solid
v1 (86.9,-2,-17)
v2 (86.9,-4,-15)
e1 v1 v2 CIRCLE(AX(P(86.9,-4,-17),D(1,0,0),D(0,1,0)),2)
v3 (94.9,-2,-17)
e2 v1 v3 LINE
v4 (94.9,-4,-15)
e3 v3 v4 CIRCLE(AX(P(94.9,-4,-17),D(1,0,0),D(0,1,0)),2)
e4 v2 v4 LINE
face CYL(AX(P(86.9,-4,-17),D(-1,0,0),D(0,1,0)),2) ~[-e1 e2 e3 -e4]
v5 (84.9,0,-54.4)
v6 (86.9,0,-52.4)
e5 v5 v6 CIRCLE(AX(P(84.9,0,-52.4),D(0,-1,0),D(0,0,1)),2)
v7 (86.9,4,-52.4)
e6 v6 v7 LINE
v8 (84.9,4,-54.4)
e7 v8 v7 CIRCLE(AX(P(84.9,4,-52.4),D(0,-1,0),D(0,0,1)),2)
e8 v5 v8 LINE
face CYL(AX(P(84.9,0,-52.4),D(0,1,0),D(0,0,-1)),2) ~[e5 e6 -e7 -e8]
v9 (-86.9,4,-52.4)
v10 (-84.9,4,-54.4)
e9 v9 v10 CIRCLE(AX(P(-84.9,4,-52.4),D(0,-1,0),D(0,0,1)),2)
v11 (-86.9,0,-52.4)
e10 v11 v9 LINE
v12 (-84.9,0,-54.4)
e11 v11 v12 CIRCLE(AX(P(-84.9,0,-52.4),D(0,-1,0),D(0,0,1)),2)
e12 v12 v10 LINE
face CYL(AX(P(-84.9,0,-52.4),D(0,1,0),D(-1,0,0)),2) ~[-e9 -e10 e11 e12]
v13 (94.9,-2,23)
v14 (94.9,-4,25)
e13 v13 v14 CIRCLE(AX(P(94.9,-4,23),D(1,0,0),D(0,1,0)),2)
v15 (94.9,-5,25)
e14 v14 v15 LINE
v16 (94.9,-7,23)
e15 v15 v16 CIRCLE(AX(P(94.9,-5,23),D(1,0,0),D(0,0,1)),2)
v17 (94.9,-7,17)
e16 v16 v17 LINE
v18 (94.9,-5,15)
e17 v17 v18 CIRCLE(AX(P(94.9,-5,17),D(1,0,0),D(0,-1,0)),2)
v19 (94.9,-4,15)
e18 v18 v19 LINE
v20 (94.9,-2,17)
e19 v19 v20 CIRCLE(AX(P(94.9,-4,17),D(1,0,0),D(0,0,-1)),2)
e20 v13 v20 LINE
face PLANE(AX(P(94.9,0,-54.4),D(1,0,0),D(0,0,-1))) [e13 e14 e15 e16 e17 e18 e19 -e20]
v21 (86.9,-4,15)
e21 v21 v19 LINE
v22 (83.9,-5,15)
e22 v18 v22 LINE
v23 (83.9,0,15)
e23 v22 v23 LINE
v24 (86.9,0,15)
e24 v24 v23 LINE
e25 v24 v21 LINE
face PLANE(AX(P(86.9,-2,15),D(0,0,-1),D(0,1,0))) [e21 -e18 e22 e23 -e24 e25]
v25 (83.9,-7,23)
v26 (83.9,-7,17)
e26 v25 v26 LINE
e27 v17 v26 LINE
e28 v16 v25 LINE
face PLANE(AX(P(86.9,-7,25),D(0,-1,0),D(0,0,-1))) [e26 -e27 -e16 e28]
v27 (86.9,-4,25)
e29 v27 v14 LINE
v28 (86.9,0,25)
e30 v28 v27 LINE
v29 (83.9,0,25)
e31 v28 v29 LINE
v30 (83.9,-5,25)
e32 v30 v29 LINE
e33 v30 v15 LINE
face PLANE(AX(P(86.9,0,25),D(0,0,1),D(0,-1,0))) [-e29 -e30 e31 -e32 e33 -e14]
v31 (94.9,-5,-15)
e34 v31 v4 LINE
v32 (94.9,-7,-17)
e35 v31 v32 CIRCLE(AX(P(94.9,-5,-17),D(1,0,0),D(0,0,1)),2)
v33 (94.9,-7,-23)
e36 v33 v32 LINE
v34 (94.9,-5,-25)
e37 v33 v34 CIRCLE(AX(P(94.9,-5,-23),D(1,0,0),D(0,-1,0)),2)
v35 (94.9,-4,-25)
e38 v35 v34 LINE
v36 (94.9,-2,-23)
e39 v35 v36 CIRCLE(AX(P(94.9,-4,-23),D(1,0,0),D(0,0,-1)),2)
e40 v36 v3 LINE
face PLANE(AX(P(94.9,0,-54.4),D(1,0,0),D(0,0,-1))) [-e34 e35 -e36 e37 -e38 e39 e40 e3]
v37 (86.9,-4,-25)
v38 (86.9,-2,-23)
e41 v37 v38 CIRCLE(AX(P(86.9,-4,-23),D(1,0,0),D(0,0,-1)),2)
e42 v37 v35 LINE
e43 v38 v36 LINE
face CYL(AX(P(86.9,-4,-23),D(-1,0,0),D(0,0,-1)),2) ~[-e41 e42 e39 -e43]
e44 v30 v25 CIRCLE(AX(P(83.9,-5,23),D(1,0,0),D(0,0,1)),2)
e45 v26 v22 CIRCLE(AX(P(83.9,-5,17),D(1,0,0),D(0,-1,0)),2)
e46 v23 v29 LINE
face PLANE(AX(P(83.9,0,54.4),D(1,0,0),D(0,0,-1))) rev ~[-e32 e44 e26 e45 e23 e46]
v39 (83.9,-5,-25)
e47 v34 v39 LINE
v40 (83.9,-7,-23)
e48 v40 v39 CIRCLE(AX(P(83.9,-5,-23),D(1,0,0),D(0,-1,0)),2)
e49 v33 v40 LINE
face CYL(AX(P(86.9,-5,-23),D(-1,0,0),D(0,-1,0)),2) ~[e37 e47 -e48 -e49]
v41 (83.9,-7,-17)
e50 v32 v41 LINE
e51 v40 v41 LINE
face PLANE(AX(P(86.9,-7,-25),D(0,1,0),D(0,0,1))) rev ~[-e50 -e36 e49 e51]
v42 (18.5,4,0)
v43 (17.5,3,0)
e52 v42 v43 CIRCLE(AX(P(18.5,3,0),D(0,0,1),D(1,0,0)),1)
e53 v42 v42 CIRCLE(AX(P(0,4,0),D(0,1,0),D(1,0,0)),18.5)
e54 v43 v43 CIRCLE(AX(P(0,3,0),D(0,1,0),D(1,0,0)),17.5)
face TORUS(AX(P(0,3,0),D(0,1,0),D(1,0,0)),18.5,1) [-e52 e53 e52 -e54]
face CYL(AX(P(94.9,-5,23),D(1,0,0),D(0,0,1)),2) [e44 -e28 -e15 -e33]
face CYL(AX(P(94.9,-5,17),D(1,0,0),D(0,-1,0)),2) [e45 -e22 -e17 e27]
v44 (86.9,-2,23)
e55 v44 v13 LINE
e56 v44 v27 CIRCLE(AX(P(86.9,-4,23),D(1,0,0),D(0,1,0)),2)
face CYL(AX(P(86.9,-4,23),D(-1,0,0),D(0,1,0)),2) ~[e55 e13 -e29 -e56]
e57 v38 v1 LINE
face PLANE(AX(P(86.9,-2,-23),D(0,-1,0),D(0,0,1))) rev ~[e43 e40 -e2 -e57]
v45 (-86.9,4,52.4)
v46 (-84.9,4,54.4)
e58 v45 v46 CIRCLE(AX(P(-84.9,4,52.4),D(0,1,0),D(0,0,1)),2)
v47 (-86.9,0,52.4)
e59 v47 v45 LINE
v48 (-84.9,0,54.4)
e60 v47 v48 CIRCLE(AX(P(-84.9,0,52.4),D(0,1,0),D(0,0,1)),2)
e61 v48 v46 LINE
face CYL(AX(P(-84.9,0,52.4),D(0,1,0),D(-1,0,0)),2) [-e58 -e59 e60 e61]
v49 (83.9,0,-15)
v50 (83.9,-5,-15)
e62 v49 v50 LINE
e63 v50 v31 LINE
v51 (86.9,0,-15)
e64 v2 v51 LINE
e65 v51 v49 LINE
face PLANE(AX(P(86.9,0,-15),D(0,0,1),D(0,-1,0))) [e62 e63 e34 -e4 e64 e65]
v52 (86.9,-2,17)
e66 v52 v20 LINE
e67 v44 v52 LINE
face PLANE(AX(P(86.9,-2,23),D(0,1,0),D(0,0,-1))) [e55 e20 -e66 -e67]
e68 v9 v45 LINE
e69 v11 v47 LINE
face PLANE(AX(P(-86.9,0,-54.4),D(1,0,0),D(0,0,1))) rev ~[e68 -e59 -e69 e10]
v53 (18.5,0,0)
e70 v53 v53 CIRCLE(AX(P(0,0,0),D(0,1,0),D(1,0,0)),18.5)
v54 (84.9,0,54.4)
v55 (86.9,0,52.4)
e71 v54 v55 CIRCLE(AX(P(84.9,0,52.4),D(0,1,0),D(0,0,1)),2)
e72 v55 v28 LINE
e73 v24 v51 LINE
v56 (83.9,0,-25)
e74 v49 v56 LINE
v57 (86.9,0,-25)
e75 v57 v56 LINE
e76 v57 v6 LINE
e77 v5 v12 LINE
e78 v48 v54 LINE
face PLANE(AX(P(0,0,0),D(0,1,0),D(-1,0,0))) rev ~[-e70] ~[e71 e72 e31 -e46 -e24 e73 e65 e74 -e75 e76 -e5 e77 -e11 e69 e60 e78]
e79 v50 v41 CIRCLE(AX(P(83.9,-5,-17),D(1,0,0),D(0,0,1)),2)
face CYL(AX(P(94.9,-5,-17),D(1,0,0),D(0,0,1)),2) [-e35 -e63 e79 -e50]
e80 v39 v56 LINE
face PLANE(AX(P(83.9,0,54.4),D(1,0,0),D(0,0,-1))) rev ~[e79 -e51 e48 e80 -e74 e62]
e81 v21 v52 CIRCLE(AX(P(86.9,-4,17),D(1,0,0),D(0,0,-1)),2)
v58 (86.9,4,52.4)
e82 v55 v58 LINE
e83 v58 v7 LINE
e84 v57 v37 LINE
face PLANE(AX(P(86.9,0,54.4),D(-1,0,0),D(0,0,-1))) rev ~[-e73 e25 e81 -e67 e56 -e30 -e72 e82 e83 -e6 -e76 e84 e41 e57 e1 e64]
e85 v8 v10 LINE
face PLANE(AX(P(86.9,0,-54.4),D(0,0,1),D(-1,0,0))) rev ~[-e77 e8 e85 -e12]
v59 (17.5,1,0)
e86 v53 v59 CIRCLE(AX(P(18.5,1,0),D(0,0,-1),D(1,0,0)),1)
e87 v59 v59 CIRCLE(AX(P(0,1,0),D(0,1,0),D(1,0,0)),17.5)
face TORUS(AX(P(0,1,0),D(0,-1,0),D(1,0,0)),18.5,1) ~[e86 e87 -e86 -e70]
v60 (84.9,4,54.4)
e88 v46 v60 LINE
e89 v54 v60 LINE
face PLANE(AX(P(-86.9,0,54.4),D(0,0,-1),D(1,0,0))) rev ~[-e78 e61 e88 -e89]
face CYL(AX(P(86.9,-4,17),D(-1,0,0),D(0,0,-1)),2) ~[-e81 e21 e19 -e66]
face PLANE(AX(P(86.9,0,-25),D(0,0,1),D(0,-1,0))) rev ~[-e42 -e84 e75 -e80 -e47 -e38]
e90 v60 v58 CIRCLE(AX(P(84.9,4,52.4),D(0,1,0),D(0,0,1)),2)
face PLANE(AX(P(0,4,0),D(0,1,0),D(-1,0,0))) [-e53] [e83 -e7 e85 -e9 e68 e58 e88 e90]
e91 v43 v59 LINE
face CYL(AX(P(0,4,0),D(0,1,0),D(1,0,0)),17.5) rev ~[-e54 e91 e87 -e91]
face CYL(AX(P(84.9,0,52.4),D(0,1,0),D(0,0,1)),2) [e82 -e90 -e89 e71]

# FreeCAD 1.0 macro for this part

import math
import FreeCAD as App
import Part
import Sketcher
from FreeCAD import Vector
Q = App.Units.Quantity


def edges_at(feature, points):
    """Names of the edges that pass closest to the given points."""
    edges = feature.Shape.Edges
    near = lambda p: min(range(len(edges)), key=lambda i: edges[i].distToShape(Part.Vertex(*p))[0])
    return sorted({f"Edge{near(p) + 1}" for p in points})


def add_polygon(sketch, points):
    """Adds a closed chain of lines whose ends are joined by coincident constraints."""
    first, n = sketch.GeometryCount, len(points)
    for a, b in zip(points, points[1:] + points[:1]):
        sketch.addGeometry(Part.LineSegment(App.Vector(*a, 0), App.Vector(*b, 0)), False)
    for i in range(n):
        sketch.addConstraint(Sketcher.Constraint("Coincident", first + i, 2, first + (i + 1) % n, 1))

doc = App.newDocument("Part")
body = doc.addObject("PartDesign::Body", "Body")

# Sketch on XZ plane
sketch1 = body.newObject("Sketcher::SketchObject", "Sketch")
sketch1.AttachmentSupport = (doc.getObject("XZ_Plane"), [""])
sketch1.MapMode = "FlatFace"
add_polygon(sketch1, [(-87, -54), (-87, 54), (87, 54), (87, -54)])  # lines 0-3
sketch1.addConstraint([
    Sketcher.Constraint("Vertical", 0),
    Sketcher.Constraint("Horizontal", 1),
    Sketcher.Constraint("Vertical", 2),
    Sketcher.Constraint("Horizontal", 3),
    Sketcher.Constraint("Symmetric", 0, 2, 2, 2, -1, 1),
    Sketcher.Constraint("DistanceX", 1, 1, 1, 2, Q("173.8 mm")),
    Sketcher.Constraint("DistanceY", 0, 1, 0, 2, Q("108.8 mm")),
])
pad1 = body.newObject("PartDesign::Pad", "Pad")
pad1.Profile = sketch1
pad1.Length = 4
pad1.Reversed = True

# Sketch on YZ plane
sketch2 = body.newObject("Sketcher::SketchObject", "Sketch001")
sketch2.AttachmentSupport = (doc.getObject("YZ_Plane"), [""])
sketch2.MapMode = "FlatFace"
sketch2.AttachmentOffset = App.Placement(Vector(0, 0, 86.9), App.Rotation())
add_polygon(sketch2, [(0, 15), (0, 25), (-7, 25), (-7, 15)])  # lines 0-3
add_polygon(sketch2, [(0, -25), (0, -15), (-7, -15), (-7, -25)])  # lines 4-7
sketch2.addConstraint([
    Sketcher.Constraint("Vertical", 0),
    Sketcher.Constraint("Horizontal", 1),
    Sketcher.Constraint("Vertical", 2),
    Sketcher.Constraint("Horizontal", 3),
    Sketcher.Constraint("Vertical", 4),
    Sketcher.Constraint("Horizontal", 5),
    Sketcher.Constraint("Vertical", 6),
    Sketcher.Constraint("Horizontal", 7),
    Sketcher.Constraint("Symmetric", 3, 2, 4, 2, -1, 1),
    Sketcher.Constraint("Symmetric", 1, 2, 6, 2, -1),
    Sketcher.Constraint("PointOnObject", 0, 2, -2),
    Sketcher.Constraint("DistanceY", 0, 1, 0, 2, Q("10 mm")),
    Sketcher.Constraint("DistanceY", 4, 2, 3, 2, Q("30 mm")),
    Sketcher.Constraint("DistanceX", 1, 2, 1, 1, Q("7 mm")),
])
pad2 = body.newObject("PartDesign::Pad", "Pad001")
pad2.Profile = sketch2
pad2.Length = 3
pad2.Reversed = True

# Sketch on YZ plane
sketch3 = body.newObject("Sketcher::SketchObject", "Sketch002")
sketch3.AttachmentSupport = (doc.getObject("YZ_Plane"), [""])
sketch3.MapMode = "FlatFace"
sketch3.AttachmentOffset = App.Placement(Vector(0, 0, 86.9), App.Rotation())
sketch3.addGeometry([
    Part.LineSegment(Vector(-2, 17, 0), Vector(-2, 23, 0)),  # 0
    Part.ArcOfCircle(Part.Circle(Vector(-4, 23, 0), Vector(0, 0, 1), 2), math.radians(0), math.radians(90)),  # 1
    Part.LineSegment(Vector(-4, 25, 0), Vector(-5, 25, 0)),  # 2
    Part.ArcOfCircle(Part.Circle(Vector(-5, 23, 0), Vector(0, 0, 1), 2), math.radians(90), math.radians(180)),  # 3
    Part.LineSegment(Vector(-7, 23, 0), Vector(-7, 17, 0)),  # 4
    Part.ArcOfCircle(Part.Circle(Vector(-5, 17, 0), Vector(0, 0, 1), 2), math.radians(180), math.radians(270)),  # 5
    Part.LineSegment(Vector(-5, 15, 0), Vector(-4, 15, 0)),  # 6
    Part.ArcOfCircle(Part.Circle(Vector(-4, 17, 0), Vector(0, 0, 1), 2), math.radians(-90), math.radians(0)),  # 7
    Part.ArcOfCircle(Part.Circle(Vector(-4, -23, 0), Vector(0, 0, 1), 2), math.radians(-90), math.radians(0)),  # 8
    Part.LineSegment(Vector(-2, -23, 0), Vector(-2, -17, 0)),  # 9
    Part.ArcOfCircle(Part.Circle(Vector(-4, -17, 0), Vector(0, 0, 1), 2), math.radians(0), math.radians(90)),  # 10
    Part.LineSegment(Vector(-4, -15, 0), Vector(-5, -15, 0)),  # 11
    Part.ArcOfCircle(Part.Circle(Vector(-5, -17, 0), Vector(0, 0, 1), 2), math.radians(90), math.radians(180)),  # 12
    Part.LineSegment(Vector(-7, -17, 0), Vector(-7, -23, 0)),  # 13
    Part.ArcOfCircle(Part.Circle(Vector(-5, -23, 0), Vector(0, 0, 1), 2), math.radians(180), math.radians(270)),  # 14
    Part.LineSegment(Vector(-5, -25, 0), Vector(-4, -25, 0)),  # 15
], False)
sketch3.addConstraint([
    Sketcher.Constraint("Tangent", 0, 2, 1, 1),
    Sketcher.Constraint("Tangent", 1, 2, 2, 1),
    Sketcher.Constraint("Tangent", 2, 2, 3, 1),
    Sketcher.Constraint("Tangent", 3, 2, 4, 1),
    Sketcher.Constraint("Tangent", 4, 2, 5, 1),
    Sketcher.Constraint("Tangent", 5, 2, 6, 1),
    Sketcher.Constraint("Tangent", 6, 2, 7, 1),
    Sketcher.Constraint("Tangent", 7, 2, 0, 1),
    Sketcher.Constraint("Tangent", 8, 2, 9, 1),
    Sketcher.Constraint("Tangent", 9, 2, 10, 1),
    Sketcher.Constraint("Tangent", 10, 2, 11, 1),
    Sketcher.Constraint("Tangent", 11, 2, 12, 1),
    Sketcher.Constraint("Tangent", 12, 2, 13, 1),
    Sketcher.Constraint("Tangent", 13, 2, 14, 1),
    Sketcher.Constraint("Tangent", 14, 2, 15, 1),
    Sketcher.Constraint("Tangent", 15, 2, 8, 1),
    Sketcher.Constraint("Vertical", 0),
    Sketcher.Constraint("Horizontal", 2),
    Sketcher.Constraint("Vertical", 4),
    Sketcher.Constraint("Horizontal", 6),
    Sketcher.Constraint("Vertical", 9),
    Sketcher.Constraint("Horizontal", 11),
    Sketcher.Constraint("Vertical", 13),
    Sketcher.Constraint("Horizontal", 15),
    Sketcher.Constraint("Equal", 1, 3),
    Sketcher.Constraint("Equal", 3, 5),
    Sketcher.Constraint("Equal", 5, 7),
    Sketcher.Constraint("Equal", 7, 8),
    Sketcher.Constraint("Equal", 8, 10),
    Sketcher.Constraint("Equal", 10, 12),
    Sketcher.Constraint("Equal", 12, 14),
    Sketcher.Constraint("Symmetric", 1, 3, 8, 3, -1),
    Sketcher.Constraint("Symmetric", 5, 3, 12, 3, -1),
    Sketcher.Constraint("Radius", 1, Q("2 mm")),
    Sketcher.Constraint("DistanceX", 0, 2, -1, 1, Q("2 mm")),
    Sketcher.Constraint("DistanceX", 2, 2, 2, 1, Q("1 mm")),
    Sketcher.Constraint("DistanceY", 0, 1, 0, 2, Q("6 mm")),
    Sketcher.Constraint("DistanceY", -1, 1, 1, 3, Q("23 mm")),
])
pad3 = body.newObject("PartDesign::Pad", "Pad002")
pad3.Profile = sketch3
pad3.Length = 8

# Sketch on YZ plane
sketch4 = body.newObject("Sketcher::SketchObject", "Sketch003")
sketch4.AttachmentSupport = (doc.getObject("YZ_Plane"), [""])
sketch4.MapMode = "FlatFace"
sketch4.AttachmentOffset = App.Placement(Vector(0, 0, 94.9), App.Rotation())
sketch4.addGeometry([
    Part.LineSegment(Vector(-7, 17, 0), Vector(-7, 23, 0)),  # 0
    Part.ArcOfCircle(Part.Circle(Vector(-5, 23, 0), Vector(0, 0, 1), 2), math.radians(90), math.radians(180)),  # 1
    Part.LineSegment(Vector(-5, 25, 0), Vector(-8.3, 25, 0)),  # 2
    Part.LineSegment(Vector(-8.3, 25, 0), Vector(-8.3, 15, 0)),  # 3
    Part.LineSegment(Vector(-8.3, 15, 0), Vector(-5, 15, 0)),  # 4
    Part.ArcOfCircle(Part.Circle(Vector(-5, 17, 0), Vector(0, 0, 1), 2), math.radians(180), math.radians(270)),  # 5
    Part.LineSegment(Vector(-7, -23, 0), Vector(-7, -17, 0)),  # 6
    Part.ArcOfCircle(Part.Circle(Vector(-5, -17, 0), Vector(0, 0, 1), 2), math.radians(90), math.radians(180)),  # 7
    Part.LineSegment(Vector(-5, -15, 0), Vector(-9.9, -15, 0)),  # 8
    Part.LineSegment(Vector(-9.9, -15, 0), Vector(-9.9, -25, 0)),  # 9
    Part.LineSegment(Vector(-9.9, -25, 0), Vector(-5, -25, 0)),  # 10
    Part.ArcOfCircle(Part.Circle(Vector(-5, -23, 0), Vector(0, 0, 1), 2), math.radians(180), math.radians(270)),  # 11
], False)
sketch4.addConstraint([
    Sketcher.Constraint("Tangent", 0, 2, 1, 2),
    Sketcher.Constraint("Tangent", 1, 1, 2, 1),
    Sketcher.Constraint("Coincident", 2, 2, 3, 1),
    Sketcher.Constraint("Coincident", 3, 2, 4, 1),
    Sketcher.Constraint("Tangent", 4, 2, 5, 2),
    Sketcher.Constraint("Tangent", 5, 1, 0, 1),
    Sketcher.Constraint("Tangent", 6, 2, 7, 2),
    Sketcher.Constraint("Tangent", 7, 1, 8, 1),
    Sketcher.Constraint("Coincident", 8, 2, 9, 1),
    Sketcher.Constraint("Coincident", 9, 2, 10, 1),
    Sketcher.Constraint("Tangent", 10, 2, 11, 2),
    Sketcher.Constraint("Tangent", 11, 1, 6, 1),
    Sketcher.Constraint("Vertical", 0),
    Sketcher.Constraint("Horizontal", 2),
    Sketcher.Constraint("Vertical", 3),
    Sketcher.Constraint("Horizontal", 4),
    Sketcher.Constraint("Vertical", 6),
    Sketcher.Constraint("Horizontal", 8),
    Sketcher.Constraint("Vertical", 9),
    Sketcher.Constraint("Horizontal", 10),
    Sketcher.Constraint("Equal", 1, 5),
    Sketcher.Constraint("Equal", 5, 7),
    Sketcher.Constraint("Equal", 7, 11),
    Sketcher.Constraint("Symmetric", 5, 3, 7, 3, -1),
    Sketcher.Constraint("Equal", 0, 6),
    Sketcher.Constraint("Radius", 1, Q("2 mm")),
    Sketcher.Constraint("DistanceY", 0, 1, 0, 2, Q("6 mm")),
    Sketcher.Constraint("DistanceX", 1, 3, -1, 1, Q("5 mm")),
    Sketcher.Constraint("DistanceY", -1, 1, 1, 3, Q("23 mm")),
    Sketcher.Constraint("DistanceX", 2, 2, 2, 1, Q("3.308 mm")),
    Sketcher.Constraint("DistanceX", 8, 2, 8, 1, Q("4.9458 mm")),
])
pocket1 = body.newObject("PartDesign::Pocket", "Pocket")
pocket1.Profile = sketch4
pocket1.Type = "ThroughAll"
doc.recompute()

fillet = body.newObject("PartDesign::Fillet", "Fillet")
fillet.Base = (pocket1, edges_at(pocket1, [
    (86.9, 2, 54.4),
    (86.9, 2, -54.4),
    (-86.9, 2, -54.4),
    (-86.9, 2, 54.4),
]))
fillet.Radius = 2

# Sketch on XZ plane
sketch5 = body.newObject("Sketcher::SketchObject", "Sketch004")
sketch5.AttachmentSupport = (doc.getObject("XZ_Plane"), [""])
sketch5.MapMode = "FlatFace"
sketch5.AttachmentOffset = App.Placement(Vector(0, 0, -4), App.Rotation())
sketch5.addGeometry(Part.Circle(Vector(0, 0, 0), Vector(0, 0, 1), 18), False)
sketch5.addConstraint([
    Sketcher.Constraint("Coincident", 0, 3, -1, 1),
    Sketcher.Constraint("Diameter", 0, Q("35 mm")),
])
pocket2 = body.newObject("PartDesign::Pocket", "Pocket001")
pocket2.Profile = sketch5
pocket2.Length = 10
pocket2.Reversed = True
doc.recompute()

fillet2 = body.newObject("PartDesign::Fillet", "Fillet001")
fillet2.Base = (pocket2, edges_at(pocket2, [(-17.5, 0, 0), (-17.5, 4, 0)]))
fillet2.Radius = 1

doc.recompute()
